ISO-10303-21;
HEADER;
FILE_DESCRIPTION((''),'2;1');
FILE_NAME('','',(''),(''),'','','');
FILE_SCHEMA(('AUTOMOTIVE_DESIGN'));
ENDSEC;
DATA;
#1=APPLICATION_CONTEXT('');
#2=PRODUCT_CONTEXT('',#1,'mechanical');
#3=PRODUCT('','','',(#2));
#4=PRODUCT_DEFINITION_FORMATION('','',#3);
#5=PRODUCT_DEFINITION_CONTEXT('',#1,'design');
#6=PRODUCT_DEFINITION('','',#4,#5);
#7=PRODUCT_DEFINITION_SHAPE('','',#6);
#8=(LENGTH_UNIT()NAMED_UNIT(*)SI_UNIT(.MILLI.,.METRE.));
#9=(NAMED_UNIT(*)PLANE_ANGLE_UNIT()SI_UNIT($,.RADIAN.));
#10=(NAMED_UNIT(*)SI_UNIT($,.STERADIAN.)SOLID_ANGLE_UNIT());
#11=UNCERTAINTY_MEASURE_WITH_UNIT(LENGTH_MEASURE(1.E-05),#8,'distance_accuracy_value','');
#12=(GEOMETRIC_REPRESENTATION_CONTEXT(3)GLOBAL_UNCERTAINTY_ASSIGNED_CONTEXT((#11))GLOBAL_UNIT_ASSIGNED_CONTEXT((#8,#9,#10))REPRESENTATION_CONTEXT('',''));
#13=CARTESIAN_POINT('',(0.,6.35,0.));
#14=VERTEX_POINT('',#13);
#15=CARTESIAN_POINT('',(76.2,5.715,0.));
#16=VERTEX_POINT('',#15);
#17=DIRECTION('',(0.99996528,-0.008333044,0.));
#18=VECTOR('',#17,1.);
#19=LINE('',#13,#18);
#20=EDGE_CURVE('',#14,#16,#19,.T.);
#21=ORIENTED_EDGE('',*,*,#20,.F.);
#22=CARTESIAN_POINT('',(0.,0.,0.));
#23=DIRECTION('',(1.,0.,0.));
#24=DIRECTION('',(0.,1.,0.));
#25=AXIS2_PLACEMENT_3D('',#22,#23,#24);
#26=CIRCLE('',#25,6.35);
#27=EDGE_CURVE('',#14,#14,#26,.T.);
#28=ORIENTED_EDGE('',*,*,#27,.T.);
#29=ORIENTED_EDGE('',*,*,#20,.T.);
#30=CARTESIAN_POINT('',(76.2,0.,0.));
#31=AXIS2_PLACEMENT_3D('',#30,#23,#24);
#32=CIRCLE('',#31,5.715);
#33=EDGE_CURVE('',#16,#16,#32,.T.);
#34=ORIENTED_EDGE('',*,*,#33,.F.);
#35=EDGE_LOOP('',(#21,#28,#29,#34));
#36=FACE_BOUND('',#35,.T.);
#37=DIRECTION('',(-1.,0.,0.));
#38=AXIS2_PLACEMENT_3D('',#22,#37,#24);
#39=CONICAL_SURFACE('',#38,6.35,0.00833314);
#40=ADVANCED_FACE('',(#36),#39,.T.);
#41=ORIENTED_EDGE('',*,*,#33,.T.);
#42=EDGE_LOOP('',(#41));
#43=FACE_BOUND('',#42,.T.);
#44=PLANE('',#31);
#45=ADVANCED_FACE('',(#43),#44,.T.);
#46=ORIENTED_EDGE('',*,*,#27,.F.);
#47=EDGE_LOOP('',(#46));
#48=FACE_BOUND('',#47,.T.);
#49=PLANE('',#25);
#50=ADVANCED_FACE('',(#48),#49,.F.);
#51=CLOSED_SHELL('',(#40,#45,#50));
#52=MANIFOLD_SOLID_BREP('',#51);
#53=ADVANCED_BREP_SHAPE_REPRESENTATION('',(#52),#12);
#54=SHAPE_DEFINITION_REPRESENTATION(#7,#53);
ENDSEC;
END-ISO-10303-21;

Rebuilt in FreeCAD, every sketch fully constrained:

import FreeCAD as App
import Part
import Sketcher
Q = App.Units.Quantity


def add_polygon(sketch, points):
    """Adds a closed chain of lines whose ends are joined by coincident constraints."""
    first, n = sketch.GeometryCount, len(points)
    for a, b in zip(points, points[1:] + points[:1]):
        sketch.addGeometry(Part.LineSegment(App.Vector(*a, 0), App.Vector(*b, 0)), False)
    for i in range(n):
        sketch.addConstraint(Sketcher.Constraint("Coincident", first + i, 2, first + (i + 1) % n, 1))

doc = App.newDocument("Part")
params = doc.addObject("Spreadsheet::Sheet", "Params")
for row, (alias, value) in enumerate([
    ("sketch1_width", "3 in"),
    ("sketch1_height", "0.25 in"),
    ("sketch1_height2", "0.225 in"),
    ("revolution_angle", "360 deg"),
], start=1):
    params.set(f"A{row}", alias)
    params.set(f"B{row}", "=" + value)
    params.setAlias(f"B{row}", alias)

body = doc.addObject("PartDesign::Body", "Body")

sketch1 = body.newObject("Sketcher::SketchObject", "Sketch")
sketch1.AttachmentSupport = (doc.getObject("XY_Plane"), [""])
sketch1.MapMode = "FlatFace"
add_polygon(sketch1, [(0, 6), (0, 0), (76, 0), (76, 6)])
sketch1.addConstraint([
    Sketcher.Constraint("Vertical", 0),
    Sketcher.Constraint("Horizontal", 1),
    Sketcher.Constraint("Vertical", 2),
    Sketcher.Constraint("Coincident", 0, 2, -1, 1),
    Sketcher.Constraint("DistanceX", 1, 1, 1, 2, Q("3 in")),
    Sketcher.Constraint("DistanceY", 0, 2, 0, 1, Q("0.25 in")),
    Sketcher.Constraint("DistanceY", 2, 1, 2, 2, Q("0.225 in")),
])
sketch1.setExpression("Constraints[8]", "Params.sketch1_width")
sketch1.setExpression("Constraints[9]", "Params.sketch1_height")
sketch1.setExpression("Constraints[10]", "Params.sketch1_height2")
revolution = body.newObject("PartDesign::Revolution", "Revolution")
revolution.Profile = sketch1
revolution.ReferenceAxis = (sketch1, ["H_Axis"])
revolution.setExpression("Angle", "Params.revolution_angle")

doc.recompute()
